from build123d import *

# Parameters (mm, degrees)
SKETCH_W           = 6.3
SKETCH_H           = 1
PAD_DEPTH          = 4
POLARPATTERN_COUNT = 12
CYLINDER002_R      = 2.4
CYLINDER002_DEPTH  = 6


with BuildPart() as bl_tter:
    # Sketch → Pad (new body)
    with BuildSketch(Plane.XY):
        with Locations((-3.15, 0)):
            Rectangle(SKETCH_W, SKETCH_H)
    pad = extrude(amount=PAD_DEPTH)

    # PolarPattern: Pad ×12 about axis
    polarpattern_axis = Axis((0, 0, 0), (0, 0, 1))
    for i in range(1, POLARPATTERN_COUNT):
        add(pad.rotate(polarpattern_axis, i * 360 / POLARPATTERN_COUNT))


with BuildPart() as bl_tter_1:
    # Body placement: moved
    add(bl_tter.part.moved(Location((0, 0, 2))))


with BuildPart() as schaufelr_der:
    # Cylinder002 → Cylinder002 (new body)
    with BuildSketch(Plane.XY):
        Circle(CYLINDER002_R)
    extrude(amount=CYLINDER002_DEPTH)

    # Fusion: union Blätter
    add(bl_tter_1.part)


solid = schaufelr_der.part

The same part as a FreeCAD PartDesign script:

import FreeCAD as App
import Part
import Sketcher
from FreeCAD import Vector
Q = App.Units.Quantity

doc = App.newDocument("Part")
params = doc.addObject("Spreadsheet::Sheet", "Params")
for row, (alias, value) in enumerate([
    ("sketch1_height", "1 mm"),
    ("sketch1_width", "6.3 mm"),
    ("pad1_length", "4 mm"),
    ("sketch2_diameter", "4.8 mm"),
    ("pad2_length", "6 mm"),
], start=1):
    params.set(f"A{row}", alias)
    params.set(f"B{row}", "=" + value)
    params.setAlias(f"B{row}", alias)

body = doc.addObject("PartDesign::Body", "Body")

sketch1 = body.newObject("Sketcher::SketchObject", "Sketch")
sketch1.AttachmentSupport = (doc.getObject("XY_Plane"), [""])
sketch1.MapMode = "FlatFace"
sketch1.addGeometry(Part.LineSegment(Vector(-6.3, 0.5, 0), Vector(-6.3, -0.5, 0)), False)
sketch1.addGeometry(Part.LineSegment(Vector(-6.3, -0.5, 0), Vector(0, -0.5, 0)), False)
sketch1.addGeometry(Part.LineSegment(Vector(0, -0.5, 0), Vector(0, 0.5, 0)), False)
sketch1.addGeometry(Part.LineSegment(Vector(0, 0.5, 0), Vector(-6.3, 0.5, 0)), False)
sketch1.addConstraint(Sketcher.Constraint("Coincident", 0, 2, 1, 1))
sketch1.addConstraint(Sketcher.Constraint("Coincident", 1, 2, 2, 1))
sketch1.addConstraint(Sketcher.Constraint("Coincident", 2, 2, 3, 1))
sketch1.addConstraint(Sketcher.Constraint("Coincident", 3, 2, 0, 1))
sketch1.addConstraint(Sketcher.Constraint("Vertical", 0))
sketch1.addConstraint(Sketcher.Constraint("Horizontal", 1))
sketch1.addConstraint(Sketcher.Constraint("Vertical", 2))
sketch1.addConstraint(Sketcher.Constraint("Horizontal", 3))
sketch1.addConstraint(Sketcher.Constraint("Symmetric", 1, 2, 2, 2, -1, 1))
sketch1.addConstraint(Sketcher.Constraint("DistanceY", 0, 2, 0, 1, Q("1 mm")))
sketch1.addConstraint(Sketcher.Constraint("DistanceX", 1, 1, 1, 2, Q("6.3 mm")))
sketch1.setExpression("Constraints[9]", "Params.sketch1_height")
sketch1.setExpression("Constraints[10]", "Params.sketch1_width")
pad1 = body.newObject("PartDesign::Pad", "Pad")
pad1.Profile = sketch1
pad1.setExpression("Length", "Params.pad1_length")
doc.recompute()

polarpattern = body.newObject("PartDesign::PolarPattern", "PolarPattern")
polarpattern.Originals = [pad1]
polarpattern.Axis = (doc.getObject("Z_Axis"), [""])
polarpattern.Angle = 360
polarpattern.Occurrences = 12
body.Tip = polarpattern
body2 = doc.addObject("PartDesign::Body", "Body001")
doc.recompute()

body.Placement = App.Placement(Vector(0, 0, 2), App.Rotation(Vector(0, 0, 1), 0))
boolean = body2.newObject("PartDesign::Boolean", "Boolean")
boolean.Type = "Fuse"
boolean.addObjects([body])
body3 = doc.addObject("PartDesign::Body", "Body002")

sketch2 = body3.newObject("Sketcher::SketchObject", "Sketch001")
sketch2.AttachmentSupport = (doc.getObject("XY_Plane002"), [""])
sketch2.MapMode = "FlatFace"
sketch2.addGeometry(Part.Circle(Vector(0, 0, 0), Vector(0, 0, 1), 2.4), False)
sketch2.addConstraint(Sketcher.Constraint("Coincident", 0, 3, -1, 1))
sketch2.addConstraint(Sketcher.Constraint("Diameter", 0, Q("4.8 mm")))
sketch2.setExpression("Constraints[1]", "Params.sketch2_diameter")
pad2 = body3.newObject("PartDesign::Pad", "Pad001")
pad2.Profile = sketch2
pad2.setExpression("Length", "Params.pad2_length")
doc.recompute()

boolean2 = body3.newObject("PartDesign::Boolean", "Boolean001")
boolean2.Type = "Fuse"
boolean2.addObjects([body2])

doc.recompute()
